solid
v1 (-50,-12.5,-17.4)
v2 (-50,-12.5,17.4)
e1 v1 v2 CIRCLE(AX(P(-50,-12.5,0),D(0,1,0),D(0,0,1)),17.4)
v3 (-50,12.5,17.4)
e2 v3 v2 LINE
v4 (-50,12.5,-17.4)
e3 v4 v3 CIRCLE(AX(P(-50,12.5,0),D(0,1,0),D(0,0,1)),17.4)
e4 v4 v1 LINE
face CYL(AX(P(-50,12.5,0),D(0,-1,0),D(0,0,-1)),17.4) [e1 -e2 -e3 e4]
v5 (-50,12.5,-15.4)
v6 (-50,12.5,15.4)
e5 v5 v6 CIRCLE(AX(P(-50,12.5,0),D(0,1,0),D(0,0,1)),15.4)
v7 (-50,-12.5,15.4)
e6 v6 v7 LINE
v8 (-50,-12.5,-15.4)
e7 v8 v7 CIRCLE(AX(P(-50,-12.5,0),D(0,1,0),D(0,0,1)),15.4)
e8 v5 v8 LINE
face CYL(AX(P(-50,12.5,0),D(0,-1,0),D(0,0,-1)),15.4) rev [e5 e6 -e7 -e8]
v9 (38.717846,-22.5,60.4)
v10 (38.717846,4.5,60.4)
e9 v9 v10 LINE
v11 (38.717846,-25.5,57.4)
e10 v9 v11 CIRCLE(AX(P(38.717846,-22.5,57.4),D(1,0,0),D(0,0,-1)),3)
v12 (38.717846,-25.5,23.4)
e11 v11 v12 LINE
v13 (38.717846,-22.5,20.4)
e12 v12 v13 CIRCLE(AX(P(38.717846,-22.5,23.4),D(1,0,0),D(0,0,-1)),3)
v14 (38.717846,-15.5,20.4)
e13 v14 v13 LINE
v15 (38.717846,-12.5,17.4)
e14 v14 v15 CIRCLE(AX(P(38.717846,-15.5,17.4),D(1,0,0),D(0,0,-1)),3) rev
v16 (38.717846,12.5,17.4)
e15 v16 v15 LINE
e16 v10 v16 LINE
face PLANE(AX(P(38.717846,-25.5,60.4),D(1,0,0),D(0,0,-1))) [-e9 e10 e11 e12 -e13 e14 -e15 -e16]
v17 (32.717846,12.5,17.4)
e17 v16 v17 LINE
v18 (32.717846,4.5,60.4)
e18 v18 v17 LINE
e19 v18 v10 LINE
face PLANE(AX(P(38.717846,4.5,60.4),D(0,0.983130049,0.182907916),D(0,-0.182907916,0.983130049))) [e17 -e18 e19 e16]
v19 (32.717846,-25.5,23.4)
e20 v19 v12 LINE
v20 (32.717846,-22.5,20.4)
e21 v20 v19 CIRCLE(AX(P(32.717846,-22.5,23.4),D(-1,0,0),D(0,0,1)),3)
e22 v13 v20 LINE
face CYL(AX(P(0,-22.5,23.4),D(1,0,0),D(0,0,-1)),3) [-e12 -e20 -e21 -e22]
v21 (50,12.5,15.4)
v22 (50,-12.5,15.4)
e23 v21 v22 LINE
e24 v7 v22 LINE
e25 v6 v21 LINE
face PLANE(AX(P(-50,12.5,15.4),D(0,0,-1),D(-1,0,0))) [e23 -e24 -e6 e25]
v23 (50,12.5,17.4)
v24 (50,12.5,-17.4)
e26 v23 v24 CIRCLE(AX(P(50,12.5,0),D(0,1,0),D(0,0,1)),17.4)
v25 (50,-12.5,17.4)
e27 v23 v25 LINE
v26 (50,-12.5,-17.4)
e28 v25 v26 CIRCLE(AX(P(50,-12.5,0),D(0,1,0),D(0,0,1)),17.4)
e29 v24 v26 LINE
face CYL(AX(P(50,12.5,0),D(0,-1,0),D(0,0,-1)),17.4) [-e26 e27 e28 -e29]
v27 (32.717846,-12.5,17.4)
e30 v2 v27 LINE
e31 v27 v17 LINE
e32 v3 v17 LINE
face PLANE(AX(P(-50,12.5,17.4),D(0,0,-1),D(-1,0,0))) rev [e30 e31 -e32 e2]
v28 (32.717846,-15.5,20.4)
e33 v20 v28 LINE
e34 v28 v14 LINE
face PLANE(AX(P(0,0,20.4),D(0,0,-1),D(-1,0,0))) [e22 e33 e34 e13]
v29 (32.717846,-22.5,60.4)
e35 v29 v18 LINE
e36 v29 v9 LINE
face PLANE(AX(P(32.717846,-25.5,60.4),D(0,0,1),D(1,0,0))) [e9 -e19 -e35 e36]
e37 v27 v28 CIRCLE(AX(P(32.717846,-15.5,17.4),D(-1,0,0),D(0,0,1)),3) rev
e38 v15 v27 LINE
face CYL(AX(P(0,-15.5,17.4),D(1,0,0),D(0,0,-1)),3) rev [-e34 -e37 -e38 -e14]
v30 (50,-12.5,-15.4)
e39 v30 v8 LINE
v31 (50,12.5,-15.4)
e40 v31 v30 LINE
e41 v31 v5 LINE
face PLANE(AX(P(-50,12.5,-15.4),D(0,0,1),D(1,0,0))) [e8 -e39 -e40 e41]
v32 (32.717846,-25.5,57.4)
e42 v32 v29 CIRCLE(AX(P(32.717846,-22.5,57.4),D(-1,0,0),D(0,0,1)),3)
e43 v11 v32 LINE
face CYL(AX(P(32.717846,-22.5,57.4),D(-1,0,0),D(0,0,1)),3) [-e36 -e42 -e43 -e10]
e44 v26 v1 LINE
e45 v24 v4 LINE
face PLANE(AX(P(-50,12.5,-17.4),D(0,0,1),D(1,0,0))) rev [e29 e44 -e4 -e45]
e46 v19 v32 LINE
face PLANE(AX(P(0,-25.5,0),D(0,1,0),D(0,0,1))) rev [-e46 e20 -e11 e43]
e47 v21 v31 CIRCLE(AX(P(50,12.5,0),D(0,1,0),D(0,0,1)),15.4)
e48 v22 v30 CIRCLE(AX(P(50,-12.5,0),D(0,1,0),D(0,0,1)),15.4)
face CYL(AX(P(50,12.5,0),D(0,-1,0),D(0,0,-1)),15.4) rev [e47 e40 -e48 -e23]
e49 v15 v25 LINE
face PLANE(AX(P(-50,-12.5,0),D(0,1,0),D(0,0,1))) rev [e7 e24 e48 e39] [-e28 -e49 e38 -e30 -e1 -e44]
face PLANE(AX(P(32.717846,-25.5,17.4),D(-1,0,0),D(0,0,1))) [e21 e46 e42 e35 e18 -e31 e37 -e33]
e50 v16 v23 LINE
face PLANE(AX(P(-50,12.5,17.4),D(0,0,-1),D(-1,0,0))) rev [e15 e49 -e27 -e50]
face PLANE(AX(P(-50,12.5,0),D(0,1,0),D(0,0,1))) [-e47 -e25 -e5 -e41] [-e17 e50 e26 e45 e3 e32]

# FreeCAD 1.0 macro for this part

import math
import FreeCAD as App
import Part
import Sketcher

V = App.Vector
Q = App.Units.Quantity


def edges_at(feature, points):
    """Names of the edges that pass closest to the given points."""
    edges = feature.Shape.Edges
    near = lambda p: min(range(len(edges)), key=lambda i: edges[i].distToShape(Part.Vertex(*p))[0])
    return sorted({f"Edge{near(p) + 1}" for p in points})


def add_polygon(sketch, points):
    """Adds a closed chain of lines whose ends are joined by coincident constraints."""
    first, n = sketch.GeometryCount, len(points)
    for a, b in zip(points, points[1:] + points[:1]):
        sketch.addGeometry(Part.LineSegment(App.Vector(*a, 0), App.Vector(*b, 0)), False)
    for i in range(n):
        sketch.addConstraint(Sketcher.Constraint("Coincident", first + i, 2, first + (i + 1) % n, 1))

doc = App.newDocument("Part")
params = doc.addObject("Spreadsheet::Sheet", "Params")
for row, (alias, value) in enumerate([
    ("sketch1_radius", "17.4 mm"),
    ("sketch1_radius2", "15.4 mm"),
    ("sketch1_width", "100 mm"),
    ("pad1_length", "25 mm"),
    ("sketch2_width", "6 mm"),
    ("sketch2_height", "43 mm"),
    ("pad2_length", "38 mm"),
    ("sketch3_width", "6 mm"),
    ("sketch3_height", "13 mm"),
    ("pocket1_length", "3 mm"),
    ("sketch4_width", "6 mm"),
    ("sketch4_height", "43 mm"),
    ("pocket2_length", "8 mm"),
    ("sketch5_width", "8 mm"),
    ("sketch5_height", "43 mm"),
    ("pad3_length", "6 mm"),
    ("fillet_radius", "3 mm"),
    ("fillet2_radius", "3 mm"),
], start=1):
    params.set(f"A{row}", alias)
    params.set(f"B{row}", "=" + value)
    params.setAlias(f"B{row}", alias)

body = doc.addObject("PartDesign::Body", "Body")

# Sketch on XZ plane
sketch1 = doc.addObject("Sketcher::SketchObject", "Sketch")
body.addObject(sketch1)
sketch1.AttachmentSupport = (doc.XZ_Plane, [""])
sketch1.MapMode = "FlatFace"
sketch1.addGeometry([
    Part.LineSegment(V(50, -17.4, 0), V(-50, -17.4, 0)),  # 0
    Part.ArcOfCircle(Part.Circle(V(-50, 0, 0), V(0, 0, 1), 17.4), math.radians(90), math.radians(270)),  # 1
    Part.LineSegment(V(-50, 17.4, 0), V(50, 17.4, 0)),  # 2
    Part.ArcOfCircle(Part.Circle(V(50, 0, 0), V(0, 0, 1), 17.4), math.radians(-90), math.radians(90)),  # 3
    Part.LineSegment(V(-50, -15.4, 0), V(50, -15.4, 0)),  # 4
    Part.ArcOfCircle(Part.Circle(V(50, 0, 0), V(0, 0, 1), 15.4), math.radians(-90), math.radians(90)),  # 5
    Part.LineSegment(V(50, 15.4, 0), V(-50, 15.4, 0)),  # 6
    Part.ArcOfCircle(Part.Circle(V(-50, 0, 0), V(0, 0, 1), 15.4), math.radians(90), math.radians(270)),  # 7
], False)
sketch1.addConstraint([
    Sketcher.Constraint("Tangent", 0, 2, 1, 2),
    Sketcher.Constraint("Tangent", 1, 1, 2, 1),
    Sketcher.Constraint("Tangent", 2, 2, 3, 2),
    Sketcher.Constraint("Tangent", 3, 1, 0, 1),
    Sketcher.Constraint("Tangent", 4, 2, 5, 1),
    Sketcher.Constraint("Tangent", 5, 2, 6, 1),
    Sketcher.Constraint("Tangent", 6, 2, 7, 1),
    Sketcher.Constraint("Tangent", 7, 2, 4, 1),
    Sketcher.Constraint("Horizontal", 0),
    Sketcher.Constraint("Horizontal", 2),
    Sketcher.Constraint("Horizontal", 4),
    Sketcher.Constraint("Horizontal", 6),
    Sketcher.Constraint("Coincident", 5, 3, 3, 3),
    Sketcher.Constraint("Symmetric", 1, 3, 3, 3, -1, 1),
    Sketcher.Constraint("Vertical", 7, 3, 0, 2),
    Sketcher.Constraint("Radius", 1, Q("17.4 mm")),
    Sketcher.Constraint("Radius", 5, Q("15.4 mm")),
    Sketcher.Constraint("DistanceX", 0, 2, 0, 1, Q("100 mm")),
])
sketch1.setExpression("Constraints[15]", "Params.sketch1_radius")
sketch1.setExpression("Constraints[16]", "Params.sketch1_radius2")
sketch1.setExpression("Constraints[17]", "Params.sketch1_width")
pad1 = doc.addObject("PartDesign::Pad", "Pad")
body.addObject(pad1)
pad1.Profile = sketch1
pad1.setExpression("Length", "Params.pad1_length")
pad1.Midplane = True

# Sketch on XZ plane
sketch2 = doc.addObject("Sketcher::SketchObject", "Sketch001")
body.addObject(sketch2)
sketch2.AttachmentSupport = (doc.XZ_Plane, [""])
sketch2.MapMode = "FlatFace"
sketch2.AttachmentOffset = App.Placement(V(0, 0, -12.5), App.Rotation())
add_polygon(sketch2, [(32.717846, 17.4), (32.717846, 60.4), (38.717846, 60.4), (38.717846, 17.4)])  # lines 0-3
sketch2.addConstraint([
    Sketcher.Constraint("Vertical", 0),
    Sketcher.Constraint("Horizontal", 1),
    Sketcher.Constraint("Vertical", 2),
    Sketcher.Constraint("Horizontal", 3),
    Sketcher.Constraint("DistanceX", 1, 1, 1, 2, Q("6 mm")),
    Sketcher.Constraint("DistanceY", 0, 1, 0, 2, Q("43 mm")),
    Sketcher.Constraint("DistanceY", -1, 1, 0, 2, Q("60.4 mm")),
    Sketcher.Constraint("DistanceX", -1, 1, 0, 2, Q("32.717846 mm")),
])
sketch2.setExpression("Constraints[8]", "Params.sketch2_width")
sketch2.setExpression("Constraints[9]", "Params.sketch2_height")
pad2 = doc.addObject("PartDesign::Pad", "Pad001")
body.addObject(pad2)
pad2.Profile = sketch2
pad2.setExpression("Length", "Params.pad2_length")

# Sketch on XY plane
sketch3 = doc.addObject("Sketcher::SketchObject", "Sketch002")
body.addObject(sketch3)
sketch3.AttachmentSupport = (doc.XY_Plane, [""])
sketch3.MapMode = "FlatFace"
sketch3.AttachmentOffset = App.Placement(V(0, 0, 17.4), App.Rotation())
add_polygon(sketch3, [(38.717846, -12.5), (38.717846, -25.5), (32.717846, -25.5), (32.717846, -12.5)])  # lines 0-3
sketch3.addConstraint([
    Sketcher.Constraint("Vertical", 0),
    Sketcher.Constraint("Horizontal", 1),
    Sketcher.Constraint("Vertical", 2),
    Sketcher.Constraint("Horizontal", 3),
    Sketcher.Constraint("DistanceX", 1, 2, 1, 1, Q("6 mm")),
    Sketcher.Constraint("DistanceY", 0, 2, 0, 1, Q("13 mm")),
    Sketcher.Constraint("DistanceY", 0, 2, -1, 1, Q("25.5 mm")),
    Sketcher.Constraint("DistanceX", -1, 1, 0, 2, Q("38.717846 mm")),
])
sketch3.setExpression("Constraints[8]", "Params.sketch3_width")
sketch3.setExpression("Constraints[9]", "Params.sketch3_height")
pocket1 = doc.addObject("PartDesign::Pocket", "Pocket")
body.addObject(pocket1)
pocket1.Profile = sketch3
pocket1.setExpression("Length", "Params.pocket1_length")
pocket1.Reversed = True

# Sketch on XZ plane
sketch4 = doc.addObject("Sketcher::SketchObject", "Sketch003")
body.addObject(sketch4)
sketch4.AttachmentSupport = (doc.XZ_Plane, [""])
sketch4.MapMode = "FlatFace"
sketch4.AttachmentOffset = App.Placement(V(0, 0, -12.5), App.Rotation())
add_polygon(sketch4, [(32.717846, 17.4), (32.717846, 60.4), (38.717846, 60.4), (38.717846, 17.4)])  # lines 0-3
sketch4.addConstraint([
    Sketcher.Constraint("Vertical", 0),
    Sketcher.Constraint("Horizontal", 1),
    Sketcher.Constraint("Vertical", 2),
    Sketcher.Constraint("Horizontal", 3),
    Sketcher.Constraint("DistanceX", 1, 1, 1, 2, Q("6 mm")),
    Sketcher.Constraint("DistanceY", 0, 1, 0, 2, Q("43 mm")),
    Sketcher.Constraint("DistanceY", -1, 1, 0, 2, Q("60.4 mm")),
    Sketcher.Constraint("DistanceX", -1, 1, 0, 2, Q("32.717846 mm")),
])
sketch4.setExpression("Constraints[8]", "Params.sketch4_width")
sketch4.setExpression("Constraints[9]", "Params.sketch4_height")
pocket2 = doc.addObject("PartDesign::Pocket", "Pocket001")
body.addObject(pocket2)
pocket2.Profile = sketch4
pocket2.setExpression("Length", "Params.pocket2_length")
pocket2.Reversed = True

# Sketch on YZ plane
sketch5 = doc.addObject("Sketcher::SketchObject", "Sketch004")
body.addObject(sketch5)
sketch5.AttachmentSupport = (doc.YZ_Plane, [""])
sketch5.MapMode = "FlatFace"
sketch5.AttachmentOffset = App.Placement(V(0, 0, 32.717846), App.Rotation())
add_polygon(sketch5, [(12.5, 17.4), (4.5, 17.4), (4.5, 60.4)])  # lines 0-2
sketch5.addConstraint([
    Sketcher.Constraint("Horizontal", 0),
    Sketcher.Constraint("Vertical", 1),
    Sketcher.Constraint("DistanceX", 0, 2, 0, 1, Q("8 mm")),
    Sketcher.Constraint("DistanceY", 1, 1, 1, 2, Q("43 mm")),
    Sketcher.Constraint("DistanceX", -1, 1, 0, 2, Q("4.5 mm")),
    Sketcher.Constraint("DistanceY", -1, 1, 0, 2, Q("17.4 mm")),
])
sketch5.setExpression("Constraints[5]", "Params.sketch5_width")
sketch5.setExpression("Constraints[6]", "Params.sketch5_height")
pad3 = doc.addObject("PartDesign::Pad", "Pad002")
body.addObject(pad3)
pad3.Profile = sketch5
pad3.setExpression("Length", "Params.pad3_length")
doc.recompute()

fillet = doc.addObject("PartDesign::Fillet", "Fillet")
body.addObject(fillet)
fillet.Base = (pad3, edges_at(pad3, [(35.718, -25.5, 60.4), (35.718, -25.5, 20.4)]))
fillet.setExpression("Radius", "Params.fillet_radius")
doc.recompute()

fillet2 = doc.addObject("PartDesign::Fillet", "Fillet001")
body.addObject(fillet2)
fillet2.Base = (fillet, edges_at(fillet, [(35.718, -12.5, 20.4)]))
fillet2.setExpression("Radius", "Params.fillet2_radius")

doc.recompute()
